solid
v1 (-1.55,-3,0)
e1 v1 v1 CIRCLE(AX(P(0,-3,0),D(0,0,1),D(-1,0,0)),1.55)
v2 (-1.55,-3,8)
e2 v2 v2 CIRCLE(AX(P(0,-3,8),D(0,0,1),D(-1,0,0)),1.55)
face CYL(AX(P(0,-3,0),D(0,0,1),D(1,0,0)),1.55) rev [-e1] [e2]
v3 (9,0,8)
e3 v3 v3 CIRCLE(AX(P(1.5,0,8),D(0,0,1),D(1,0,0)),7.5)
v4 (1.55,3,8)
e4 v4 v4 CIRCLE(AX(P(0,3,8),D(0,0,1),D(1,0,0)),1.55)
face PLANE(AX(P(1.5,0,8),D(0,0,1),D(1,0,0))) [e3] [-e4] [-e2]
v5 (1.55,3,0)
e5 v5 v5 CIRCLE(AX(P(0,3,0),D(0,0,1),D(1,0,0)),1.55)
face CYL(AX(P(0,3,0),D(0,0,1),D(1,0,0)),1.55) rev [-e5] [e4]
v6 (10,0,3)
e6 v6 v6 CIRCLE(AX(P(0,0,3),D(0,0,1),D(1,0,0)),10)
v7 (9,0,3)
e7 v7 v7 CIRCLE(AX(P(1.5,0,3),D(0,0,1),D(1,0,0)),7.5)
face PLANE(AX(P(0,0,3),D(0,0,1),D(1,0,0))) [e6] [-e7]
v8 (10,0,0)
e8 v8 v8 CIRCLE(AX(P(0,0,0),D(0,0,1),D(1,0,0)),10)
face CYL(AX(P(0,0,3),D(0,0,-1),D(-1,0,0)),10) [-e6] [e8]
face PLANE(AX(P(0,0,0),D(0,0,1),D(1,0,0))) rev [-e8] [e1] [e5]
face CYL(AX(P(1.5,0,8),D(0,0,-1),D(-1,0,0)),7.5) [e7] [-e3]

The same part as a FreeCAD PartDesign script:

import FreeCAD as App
import Part
import Sketcher

V = App.Vector

doc = App.newDocument("Part")
params = doc.addObject("Spreadsheet::Sheet", "Params")
for row, (alias, value) in enumerate([
    ("sketch1_diameter", "20 mm"),
    ("pad1_length", "3 mm"),
    ("sketch2_diameter", "15 mm"),
    ("pad2_length", "5 mm"),
    ("sketch3_diameter", "3.1 mm"),
], start=1):
    params.set(f"A{row}", alias)
    params.set(f"B{row}", "=" + value)
    params.setAlias(f"B{row}", alias)

body = doc.addObject("PartDesign::Body", "Body")

# Sketch on XY plane
sketch1 = body.newObject("Sketcher::SketchObject", "Sketch")
sketch1.AttachmentSupport = (doc.getObject("XY_Plane"), [""])
sketch1.MapMode = "FlatFace"
sketch1.addGeometry(Part.Circle(V(0, 0, 0), V(0, 0, 1), 10), False)
sketch1.addConstraint(Sketcher.Constraint("Coincident", 0, 3, -1, 1))
sketch1.addConstraint(Sketcher.Constraint("Diameter", 0, 20.0))
sketch1.setExpression("Constraints[1]", "Params.sketch1_diameter")
pad1 = body.newObject("PartDesign::Pad", "Pad")
pad1.Profile = sketch1
pad1.setExpression("Length", "Params.pad1_length")

# Sketch on XY plane
sketch2 = body.newObject("Sketcher::SketchObject", "Sketch001")
sketch2.AttachmentSupport = (doc.getObject("XY_Plane"), [""])
sketch2.MapMode = "FlatFace"
sketch2.AttachmentOffset = App.Placement(V(0, 0, 3), App.Rotation())
sketch2.addGeometry(Part.Circle(V(2, 0, 0), V(0, 0, 1), 8), False)
sketch2.addConstraint(Sketcher.Constraint("PointOnObject", 0, 3, -1))
sketch2.addConstraint(Sketcher.Constraint("Diameter", 0, 15.0))
sketch2.addConstraint(Sketcher.Constraint("DistanceX", -1, 1, 0, 3, 1.5))
sketch2.setExpression("Constraints[1]", "Params.sketch2_diameter")
pad2 = body.newObject("PartDesign::Pad", "Pad001")
pad2.Profile = sketch2
pad2.setExpression("Length", "Params.pad2_length")

# Sketch on XY plane
sketch3 = body.newObject("Sketcher::SketchObject", "Sketch002")
sketch3.AttachmentSupport = (doc.getObject("XY_Plane"), [""])
sketch3.MapMode = "FlatFace"
sketch3.AttachmentOffset = App.Placement(V(0, 0, 8), App.Rotation())
sketch3.addGeometry(Part.Circle(V(0, 3, 0), V(0, 0, 1), 1.6), False)
sketch3.addGeometry(Part.Circle(V(0, -3, 0), V(0, 0, 1), 1.6), False)
sketch3.addConstraint(Sketcher.Constraint("Equal", 0, 1))
sketch3.addConstraint(Sketcher.Constraint("Symmetric", 0, 3, 1, 3, -1, 1))
sketch3.addConstraint(Sketcher.Constraint("PointOnObject", 0, 3, -2))
sketch3.addConstraint(Sketcher.Constraint("Diameter", 0, 3.1))
sketch3.addConstraint(Sketcher.Constraint("DistanceY", -1, 1, 0, 3, 3.0))
sketch3.setExpression("Constraints[3]", "Params.sketch3_diameter")
pocket1 = body.newObject("PartDesign::Pocket", "Pocket")
pocket1.Profile = sketch3
pocket1.Type = "ThroughAll"

doc.recompute()
